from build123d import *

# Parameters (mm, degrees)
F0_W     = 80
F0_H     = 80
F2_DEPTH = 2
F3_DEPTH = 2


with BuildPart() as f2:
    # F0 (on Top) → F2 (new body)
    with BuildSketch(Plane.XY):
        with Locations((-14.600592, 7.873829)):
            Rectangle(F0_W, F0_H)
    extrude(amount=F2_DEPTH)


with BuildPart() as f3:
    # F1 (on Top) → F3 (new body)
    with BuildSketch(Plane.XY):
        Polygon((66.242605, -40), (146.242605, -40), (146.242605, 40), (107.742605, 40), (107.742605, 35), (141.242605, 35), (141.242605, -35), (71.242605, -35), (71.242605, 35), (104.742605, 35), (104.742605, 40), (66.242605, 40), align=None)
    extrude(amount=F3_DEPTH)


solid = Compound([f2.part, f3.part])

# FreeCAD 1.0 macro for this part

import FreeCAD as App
import Part
import Sketcher

V = App.Vector
Q = App.Units.Quantity

doc = App.newDocument("Part")
body = doc.addObject("PartDesign::Body", "Body")

sketch1 = body.newObject("Sketcher::SketchObject", "Sketch")
sketch1.AttachmentSupport = (doc.getObject("XY_Plane"), [""])
sketch1.MapMode = "FlatFace"
sketch1.addGeometry(Part.LineSegment(V(-55, 48, 0), V(-55, -32, 0)), False)
sketch1.addGeometry(Part.LineSegment(V(-55, -32, 0), V(25, -32, 0)), False)
sketch1.addGeometry(Part.LineSegment(V(25, -32, 0), V(25, 48, 0)), False)
sketch1.addGeometry(Part.LineSegment(V(25, 48, 0), V(-55, 48, 0)), False)
sketch1.addConstraint(Sketcher.Constraint("Coincident", 0, 2, 1, 1))
sketch1.addConstraint(Sketcher.Constraint("Coincident", 1, 2, 2, 1))
sketch1.addConstraint(Sketcher.Constraint("Coincident", 2, 2, 3, 1))
sketch1.addConstraint(Sketcher.Constraint("Coincident", 3, 2, 0, 1))
sketch1.addConstraint(Sketcher.Constraint("Vertical", 0))
sketch1.addConstraint(Sketcher.Constraint("Horizontal", 1))
sketch1.addConstraint(Sketcher.Constraint("Vertical", 2))
sketch1.addConstraint(Sketcher.Constraint("Horizontal", 3))
sketch1.addConstraint(Sketcher.Constraint("Equal", 3, 0))
sketch1.addConstraint(Sketcher.Constraint("DistanceX", 1, 1, 1, 2, Q("80 mm")))
sketch1.addConstraint(Sketcher.Constraint("DistanceY", 0, 2, -1, 1, Q("32.126171 mm")))
sketch1.addConstraint(Sketcher.Constraint("DistanceX", -1, 1, 1, 2, Q("25.399408 mm")))
pad1 = body.newObject("PartDesign::Pad", "Pad")
pad1.Profile = sketch1
pad1.Length = 2
body2 = doc.addObject("PartDesign::Body", "Body001")

sketch2 = body2.newObject("Sketcher::SketchObject", "Sketch001")
sketch2.AttachmentSupport = (doc.getObject("XY_Plane001"), [""])
sketch2.MapMode = "FlatFace"
sketch2.addGeometry(Part.LineSegment(V(66, -40, 0), V(146, -40, 0)), False)
sketch2.addGeometry(Part.LineSegment(V(146, -40, 0), V(146, 40, 0)), False)
sketch2.addGeometry(Part.LineSegment(V(146, 40, 0), V(108, 40, 0)), False)
sketch2.addGeometry(Part.LineSegment(V(108, 40, 0), V(108, 35, 0)), False)
sketch2.addGeometry(Part.LineSegment(V(108, 35, 0), V(141, 35, 0)), False)
sketch2.addGeometry(Part.LineSegment(V(141, 35, 0), V(141, -35, 0)), False)
sketch2.addGeometry(Part.LineSegment(V(141, -35, 0), V(71, -35, 0)), False)
sketch2.addGeometry(Part.LineSegment(V(71, -35, 0), V(71, 35, 0)), False)
sketch2.addGeometry(Part.LineSegment(V(71, 35, 0), V(105, 35, 0)), False)
sketch2.addGeometry(Part.LineSegment(V(105, 35, 0), V(105, 40, 0)), False)
sketch2.addGeometry(Part.LineSegment(V(105, 40, 0), V(66, 40, 0)), False)
sketch2.addGeometry(Part.LineSegment(V(66, 40, 0), V(66, -40, 0)), False)
sketch2.addConstraint(Sketcher.Constraint("Coincident", 0, 2, 1, 1))
sketch2.addConstraint(Sketcher.Constraint("Coincident", 1, 2, 2, 1))
sketch2.addConstraint(Sketcher.Constraint("Coincident", 2, 2, 3, 1))
sketch2.addConstraint(Sketcher.Constraint("Coincident", 3, 2, 4, 1))
sketch2.addConstraint(Sketcher.Constraint("Coincident", 4, 2, 5, 1))
sketch2.addConstraint(Sketcher.Constraint("Coincident", 5, 2, 6, 1))
sketch2.addConstraint(Sketcher.Constraint("Coincident", 6, 2, 7, 1))
sketch2.addConstraint(Sketcher.Constraint("Coincident", 7, 2, 8, 1))
sketch2.addConstraint(Sketcher.Constraint("Coincident", 8, 2, 9, 1))
sketch2.addConstraint(Sketcher.Constraint("Coincident", 9, 2, 10, 1))
sketch2.addConstraint(Sketcher.Constraint("Coincident", 10, 2, 11, 1))
sketch2.addConstraint(Sketcher.Constraint("Coincident", 11, 2, 0, 1))
sketch2.addConstraint(Sketcher.Constraint("Horizontal", 0))
sketch2.addConstraint(Sketcher.Constraint("Vertical", 1))
sketch2.addConstraint(Sketcher.Constraint("Horizontal", 2))
sketch2.addConstraint(Sketcher.Constraint("Vertical", 3))
sketch2.addConstraint(Sketcher.Constraint("Horizontal", 4))
sketch2.addConstraint(Sketcher.Constraint("Vertical", 5))
sketch2.addConstraint(Sketcher.Constraint("Horizontal", 6))
sketch2.addConstraint(Sketcher.Constraint("Vertical", 7))
sketch2.addConstraint(Sketcher.Constraint("Horizontal", 8))
sketch2.addConstraint(Sketcher.Constraint("Vertical", 9))
sketch2.addConstraint(Sketcher.Constraint("Horizontal", 10))
sketch2.addConstraint(Sketcher.Constraint("Vertical", 11))
sketch2.addConstraint(Sketcher.Constraint("Horizontal", 4, 2, 7, 2))
sketch2.addConstraint(Sketcher.Constraint("Horizontal", 2, 2, 9, 2))
sketch2.addConstraint(Sketcher.Constraint("Equal", 4, 8))
sketch2.addConstraint(Sketcher.Constraint("Equal", 2, 10))
sketch2.addConstraint(Sketcher.Constraint("Equal", 0, 1))
sketch2.addConstraint(Sketcher.Constraint("Equal", 6, 5))
sketch2.addConstraint(Sketcher.Constraint("DistanceX", 0, 1, 0, 2, Q("80 mm")))
sketch2.addConstraint(Sketcher.Constraint("DistanceX", 6, 2, 6, 1, Q("70 mm")))
sketch2.addConstraint(Sketcher.Constraint("DistanceY", 3, 2, 3, 1, Q("5 mm")))
sketch2.addConstraint(Sketcher.Constraint("DistanceX", 2, 2, 2, 1, Q("38.5 mm")))
sketch2.addConstraint(Sketcher.Constraint("DistanceY", 0, 2, -1, 1, Q("40 mm")))
sketch2.addConstraint(Sketcher.Constraint("DistanceX", -1, 1, 0, 2, Q("146.242605 mm")))
pad2 = body2.newObject("PartDesign::Pad", "Pad001")
pad2.Profile = sketch2
pad2.Length = 2

doc.recompute()
